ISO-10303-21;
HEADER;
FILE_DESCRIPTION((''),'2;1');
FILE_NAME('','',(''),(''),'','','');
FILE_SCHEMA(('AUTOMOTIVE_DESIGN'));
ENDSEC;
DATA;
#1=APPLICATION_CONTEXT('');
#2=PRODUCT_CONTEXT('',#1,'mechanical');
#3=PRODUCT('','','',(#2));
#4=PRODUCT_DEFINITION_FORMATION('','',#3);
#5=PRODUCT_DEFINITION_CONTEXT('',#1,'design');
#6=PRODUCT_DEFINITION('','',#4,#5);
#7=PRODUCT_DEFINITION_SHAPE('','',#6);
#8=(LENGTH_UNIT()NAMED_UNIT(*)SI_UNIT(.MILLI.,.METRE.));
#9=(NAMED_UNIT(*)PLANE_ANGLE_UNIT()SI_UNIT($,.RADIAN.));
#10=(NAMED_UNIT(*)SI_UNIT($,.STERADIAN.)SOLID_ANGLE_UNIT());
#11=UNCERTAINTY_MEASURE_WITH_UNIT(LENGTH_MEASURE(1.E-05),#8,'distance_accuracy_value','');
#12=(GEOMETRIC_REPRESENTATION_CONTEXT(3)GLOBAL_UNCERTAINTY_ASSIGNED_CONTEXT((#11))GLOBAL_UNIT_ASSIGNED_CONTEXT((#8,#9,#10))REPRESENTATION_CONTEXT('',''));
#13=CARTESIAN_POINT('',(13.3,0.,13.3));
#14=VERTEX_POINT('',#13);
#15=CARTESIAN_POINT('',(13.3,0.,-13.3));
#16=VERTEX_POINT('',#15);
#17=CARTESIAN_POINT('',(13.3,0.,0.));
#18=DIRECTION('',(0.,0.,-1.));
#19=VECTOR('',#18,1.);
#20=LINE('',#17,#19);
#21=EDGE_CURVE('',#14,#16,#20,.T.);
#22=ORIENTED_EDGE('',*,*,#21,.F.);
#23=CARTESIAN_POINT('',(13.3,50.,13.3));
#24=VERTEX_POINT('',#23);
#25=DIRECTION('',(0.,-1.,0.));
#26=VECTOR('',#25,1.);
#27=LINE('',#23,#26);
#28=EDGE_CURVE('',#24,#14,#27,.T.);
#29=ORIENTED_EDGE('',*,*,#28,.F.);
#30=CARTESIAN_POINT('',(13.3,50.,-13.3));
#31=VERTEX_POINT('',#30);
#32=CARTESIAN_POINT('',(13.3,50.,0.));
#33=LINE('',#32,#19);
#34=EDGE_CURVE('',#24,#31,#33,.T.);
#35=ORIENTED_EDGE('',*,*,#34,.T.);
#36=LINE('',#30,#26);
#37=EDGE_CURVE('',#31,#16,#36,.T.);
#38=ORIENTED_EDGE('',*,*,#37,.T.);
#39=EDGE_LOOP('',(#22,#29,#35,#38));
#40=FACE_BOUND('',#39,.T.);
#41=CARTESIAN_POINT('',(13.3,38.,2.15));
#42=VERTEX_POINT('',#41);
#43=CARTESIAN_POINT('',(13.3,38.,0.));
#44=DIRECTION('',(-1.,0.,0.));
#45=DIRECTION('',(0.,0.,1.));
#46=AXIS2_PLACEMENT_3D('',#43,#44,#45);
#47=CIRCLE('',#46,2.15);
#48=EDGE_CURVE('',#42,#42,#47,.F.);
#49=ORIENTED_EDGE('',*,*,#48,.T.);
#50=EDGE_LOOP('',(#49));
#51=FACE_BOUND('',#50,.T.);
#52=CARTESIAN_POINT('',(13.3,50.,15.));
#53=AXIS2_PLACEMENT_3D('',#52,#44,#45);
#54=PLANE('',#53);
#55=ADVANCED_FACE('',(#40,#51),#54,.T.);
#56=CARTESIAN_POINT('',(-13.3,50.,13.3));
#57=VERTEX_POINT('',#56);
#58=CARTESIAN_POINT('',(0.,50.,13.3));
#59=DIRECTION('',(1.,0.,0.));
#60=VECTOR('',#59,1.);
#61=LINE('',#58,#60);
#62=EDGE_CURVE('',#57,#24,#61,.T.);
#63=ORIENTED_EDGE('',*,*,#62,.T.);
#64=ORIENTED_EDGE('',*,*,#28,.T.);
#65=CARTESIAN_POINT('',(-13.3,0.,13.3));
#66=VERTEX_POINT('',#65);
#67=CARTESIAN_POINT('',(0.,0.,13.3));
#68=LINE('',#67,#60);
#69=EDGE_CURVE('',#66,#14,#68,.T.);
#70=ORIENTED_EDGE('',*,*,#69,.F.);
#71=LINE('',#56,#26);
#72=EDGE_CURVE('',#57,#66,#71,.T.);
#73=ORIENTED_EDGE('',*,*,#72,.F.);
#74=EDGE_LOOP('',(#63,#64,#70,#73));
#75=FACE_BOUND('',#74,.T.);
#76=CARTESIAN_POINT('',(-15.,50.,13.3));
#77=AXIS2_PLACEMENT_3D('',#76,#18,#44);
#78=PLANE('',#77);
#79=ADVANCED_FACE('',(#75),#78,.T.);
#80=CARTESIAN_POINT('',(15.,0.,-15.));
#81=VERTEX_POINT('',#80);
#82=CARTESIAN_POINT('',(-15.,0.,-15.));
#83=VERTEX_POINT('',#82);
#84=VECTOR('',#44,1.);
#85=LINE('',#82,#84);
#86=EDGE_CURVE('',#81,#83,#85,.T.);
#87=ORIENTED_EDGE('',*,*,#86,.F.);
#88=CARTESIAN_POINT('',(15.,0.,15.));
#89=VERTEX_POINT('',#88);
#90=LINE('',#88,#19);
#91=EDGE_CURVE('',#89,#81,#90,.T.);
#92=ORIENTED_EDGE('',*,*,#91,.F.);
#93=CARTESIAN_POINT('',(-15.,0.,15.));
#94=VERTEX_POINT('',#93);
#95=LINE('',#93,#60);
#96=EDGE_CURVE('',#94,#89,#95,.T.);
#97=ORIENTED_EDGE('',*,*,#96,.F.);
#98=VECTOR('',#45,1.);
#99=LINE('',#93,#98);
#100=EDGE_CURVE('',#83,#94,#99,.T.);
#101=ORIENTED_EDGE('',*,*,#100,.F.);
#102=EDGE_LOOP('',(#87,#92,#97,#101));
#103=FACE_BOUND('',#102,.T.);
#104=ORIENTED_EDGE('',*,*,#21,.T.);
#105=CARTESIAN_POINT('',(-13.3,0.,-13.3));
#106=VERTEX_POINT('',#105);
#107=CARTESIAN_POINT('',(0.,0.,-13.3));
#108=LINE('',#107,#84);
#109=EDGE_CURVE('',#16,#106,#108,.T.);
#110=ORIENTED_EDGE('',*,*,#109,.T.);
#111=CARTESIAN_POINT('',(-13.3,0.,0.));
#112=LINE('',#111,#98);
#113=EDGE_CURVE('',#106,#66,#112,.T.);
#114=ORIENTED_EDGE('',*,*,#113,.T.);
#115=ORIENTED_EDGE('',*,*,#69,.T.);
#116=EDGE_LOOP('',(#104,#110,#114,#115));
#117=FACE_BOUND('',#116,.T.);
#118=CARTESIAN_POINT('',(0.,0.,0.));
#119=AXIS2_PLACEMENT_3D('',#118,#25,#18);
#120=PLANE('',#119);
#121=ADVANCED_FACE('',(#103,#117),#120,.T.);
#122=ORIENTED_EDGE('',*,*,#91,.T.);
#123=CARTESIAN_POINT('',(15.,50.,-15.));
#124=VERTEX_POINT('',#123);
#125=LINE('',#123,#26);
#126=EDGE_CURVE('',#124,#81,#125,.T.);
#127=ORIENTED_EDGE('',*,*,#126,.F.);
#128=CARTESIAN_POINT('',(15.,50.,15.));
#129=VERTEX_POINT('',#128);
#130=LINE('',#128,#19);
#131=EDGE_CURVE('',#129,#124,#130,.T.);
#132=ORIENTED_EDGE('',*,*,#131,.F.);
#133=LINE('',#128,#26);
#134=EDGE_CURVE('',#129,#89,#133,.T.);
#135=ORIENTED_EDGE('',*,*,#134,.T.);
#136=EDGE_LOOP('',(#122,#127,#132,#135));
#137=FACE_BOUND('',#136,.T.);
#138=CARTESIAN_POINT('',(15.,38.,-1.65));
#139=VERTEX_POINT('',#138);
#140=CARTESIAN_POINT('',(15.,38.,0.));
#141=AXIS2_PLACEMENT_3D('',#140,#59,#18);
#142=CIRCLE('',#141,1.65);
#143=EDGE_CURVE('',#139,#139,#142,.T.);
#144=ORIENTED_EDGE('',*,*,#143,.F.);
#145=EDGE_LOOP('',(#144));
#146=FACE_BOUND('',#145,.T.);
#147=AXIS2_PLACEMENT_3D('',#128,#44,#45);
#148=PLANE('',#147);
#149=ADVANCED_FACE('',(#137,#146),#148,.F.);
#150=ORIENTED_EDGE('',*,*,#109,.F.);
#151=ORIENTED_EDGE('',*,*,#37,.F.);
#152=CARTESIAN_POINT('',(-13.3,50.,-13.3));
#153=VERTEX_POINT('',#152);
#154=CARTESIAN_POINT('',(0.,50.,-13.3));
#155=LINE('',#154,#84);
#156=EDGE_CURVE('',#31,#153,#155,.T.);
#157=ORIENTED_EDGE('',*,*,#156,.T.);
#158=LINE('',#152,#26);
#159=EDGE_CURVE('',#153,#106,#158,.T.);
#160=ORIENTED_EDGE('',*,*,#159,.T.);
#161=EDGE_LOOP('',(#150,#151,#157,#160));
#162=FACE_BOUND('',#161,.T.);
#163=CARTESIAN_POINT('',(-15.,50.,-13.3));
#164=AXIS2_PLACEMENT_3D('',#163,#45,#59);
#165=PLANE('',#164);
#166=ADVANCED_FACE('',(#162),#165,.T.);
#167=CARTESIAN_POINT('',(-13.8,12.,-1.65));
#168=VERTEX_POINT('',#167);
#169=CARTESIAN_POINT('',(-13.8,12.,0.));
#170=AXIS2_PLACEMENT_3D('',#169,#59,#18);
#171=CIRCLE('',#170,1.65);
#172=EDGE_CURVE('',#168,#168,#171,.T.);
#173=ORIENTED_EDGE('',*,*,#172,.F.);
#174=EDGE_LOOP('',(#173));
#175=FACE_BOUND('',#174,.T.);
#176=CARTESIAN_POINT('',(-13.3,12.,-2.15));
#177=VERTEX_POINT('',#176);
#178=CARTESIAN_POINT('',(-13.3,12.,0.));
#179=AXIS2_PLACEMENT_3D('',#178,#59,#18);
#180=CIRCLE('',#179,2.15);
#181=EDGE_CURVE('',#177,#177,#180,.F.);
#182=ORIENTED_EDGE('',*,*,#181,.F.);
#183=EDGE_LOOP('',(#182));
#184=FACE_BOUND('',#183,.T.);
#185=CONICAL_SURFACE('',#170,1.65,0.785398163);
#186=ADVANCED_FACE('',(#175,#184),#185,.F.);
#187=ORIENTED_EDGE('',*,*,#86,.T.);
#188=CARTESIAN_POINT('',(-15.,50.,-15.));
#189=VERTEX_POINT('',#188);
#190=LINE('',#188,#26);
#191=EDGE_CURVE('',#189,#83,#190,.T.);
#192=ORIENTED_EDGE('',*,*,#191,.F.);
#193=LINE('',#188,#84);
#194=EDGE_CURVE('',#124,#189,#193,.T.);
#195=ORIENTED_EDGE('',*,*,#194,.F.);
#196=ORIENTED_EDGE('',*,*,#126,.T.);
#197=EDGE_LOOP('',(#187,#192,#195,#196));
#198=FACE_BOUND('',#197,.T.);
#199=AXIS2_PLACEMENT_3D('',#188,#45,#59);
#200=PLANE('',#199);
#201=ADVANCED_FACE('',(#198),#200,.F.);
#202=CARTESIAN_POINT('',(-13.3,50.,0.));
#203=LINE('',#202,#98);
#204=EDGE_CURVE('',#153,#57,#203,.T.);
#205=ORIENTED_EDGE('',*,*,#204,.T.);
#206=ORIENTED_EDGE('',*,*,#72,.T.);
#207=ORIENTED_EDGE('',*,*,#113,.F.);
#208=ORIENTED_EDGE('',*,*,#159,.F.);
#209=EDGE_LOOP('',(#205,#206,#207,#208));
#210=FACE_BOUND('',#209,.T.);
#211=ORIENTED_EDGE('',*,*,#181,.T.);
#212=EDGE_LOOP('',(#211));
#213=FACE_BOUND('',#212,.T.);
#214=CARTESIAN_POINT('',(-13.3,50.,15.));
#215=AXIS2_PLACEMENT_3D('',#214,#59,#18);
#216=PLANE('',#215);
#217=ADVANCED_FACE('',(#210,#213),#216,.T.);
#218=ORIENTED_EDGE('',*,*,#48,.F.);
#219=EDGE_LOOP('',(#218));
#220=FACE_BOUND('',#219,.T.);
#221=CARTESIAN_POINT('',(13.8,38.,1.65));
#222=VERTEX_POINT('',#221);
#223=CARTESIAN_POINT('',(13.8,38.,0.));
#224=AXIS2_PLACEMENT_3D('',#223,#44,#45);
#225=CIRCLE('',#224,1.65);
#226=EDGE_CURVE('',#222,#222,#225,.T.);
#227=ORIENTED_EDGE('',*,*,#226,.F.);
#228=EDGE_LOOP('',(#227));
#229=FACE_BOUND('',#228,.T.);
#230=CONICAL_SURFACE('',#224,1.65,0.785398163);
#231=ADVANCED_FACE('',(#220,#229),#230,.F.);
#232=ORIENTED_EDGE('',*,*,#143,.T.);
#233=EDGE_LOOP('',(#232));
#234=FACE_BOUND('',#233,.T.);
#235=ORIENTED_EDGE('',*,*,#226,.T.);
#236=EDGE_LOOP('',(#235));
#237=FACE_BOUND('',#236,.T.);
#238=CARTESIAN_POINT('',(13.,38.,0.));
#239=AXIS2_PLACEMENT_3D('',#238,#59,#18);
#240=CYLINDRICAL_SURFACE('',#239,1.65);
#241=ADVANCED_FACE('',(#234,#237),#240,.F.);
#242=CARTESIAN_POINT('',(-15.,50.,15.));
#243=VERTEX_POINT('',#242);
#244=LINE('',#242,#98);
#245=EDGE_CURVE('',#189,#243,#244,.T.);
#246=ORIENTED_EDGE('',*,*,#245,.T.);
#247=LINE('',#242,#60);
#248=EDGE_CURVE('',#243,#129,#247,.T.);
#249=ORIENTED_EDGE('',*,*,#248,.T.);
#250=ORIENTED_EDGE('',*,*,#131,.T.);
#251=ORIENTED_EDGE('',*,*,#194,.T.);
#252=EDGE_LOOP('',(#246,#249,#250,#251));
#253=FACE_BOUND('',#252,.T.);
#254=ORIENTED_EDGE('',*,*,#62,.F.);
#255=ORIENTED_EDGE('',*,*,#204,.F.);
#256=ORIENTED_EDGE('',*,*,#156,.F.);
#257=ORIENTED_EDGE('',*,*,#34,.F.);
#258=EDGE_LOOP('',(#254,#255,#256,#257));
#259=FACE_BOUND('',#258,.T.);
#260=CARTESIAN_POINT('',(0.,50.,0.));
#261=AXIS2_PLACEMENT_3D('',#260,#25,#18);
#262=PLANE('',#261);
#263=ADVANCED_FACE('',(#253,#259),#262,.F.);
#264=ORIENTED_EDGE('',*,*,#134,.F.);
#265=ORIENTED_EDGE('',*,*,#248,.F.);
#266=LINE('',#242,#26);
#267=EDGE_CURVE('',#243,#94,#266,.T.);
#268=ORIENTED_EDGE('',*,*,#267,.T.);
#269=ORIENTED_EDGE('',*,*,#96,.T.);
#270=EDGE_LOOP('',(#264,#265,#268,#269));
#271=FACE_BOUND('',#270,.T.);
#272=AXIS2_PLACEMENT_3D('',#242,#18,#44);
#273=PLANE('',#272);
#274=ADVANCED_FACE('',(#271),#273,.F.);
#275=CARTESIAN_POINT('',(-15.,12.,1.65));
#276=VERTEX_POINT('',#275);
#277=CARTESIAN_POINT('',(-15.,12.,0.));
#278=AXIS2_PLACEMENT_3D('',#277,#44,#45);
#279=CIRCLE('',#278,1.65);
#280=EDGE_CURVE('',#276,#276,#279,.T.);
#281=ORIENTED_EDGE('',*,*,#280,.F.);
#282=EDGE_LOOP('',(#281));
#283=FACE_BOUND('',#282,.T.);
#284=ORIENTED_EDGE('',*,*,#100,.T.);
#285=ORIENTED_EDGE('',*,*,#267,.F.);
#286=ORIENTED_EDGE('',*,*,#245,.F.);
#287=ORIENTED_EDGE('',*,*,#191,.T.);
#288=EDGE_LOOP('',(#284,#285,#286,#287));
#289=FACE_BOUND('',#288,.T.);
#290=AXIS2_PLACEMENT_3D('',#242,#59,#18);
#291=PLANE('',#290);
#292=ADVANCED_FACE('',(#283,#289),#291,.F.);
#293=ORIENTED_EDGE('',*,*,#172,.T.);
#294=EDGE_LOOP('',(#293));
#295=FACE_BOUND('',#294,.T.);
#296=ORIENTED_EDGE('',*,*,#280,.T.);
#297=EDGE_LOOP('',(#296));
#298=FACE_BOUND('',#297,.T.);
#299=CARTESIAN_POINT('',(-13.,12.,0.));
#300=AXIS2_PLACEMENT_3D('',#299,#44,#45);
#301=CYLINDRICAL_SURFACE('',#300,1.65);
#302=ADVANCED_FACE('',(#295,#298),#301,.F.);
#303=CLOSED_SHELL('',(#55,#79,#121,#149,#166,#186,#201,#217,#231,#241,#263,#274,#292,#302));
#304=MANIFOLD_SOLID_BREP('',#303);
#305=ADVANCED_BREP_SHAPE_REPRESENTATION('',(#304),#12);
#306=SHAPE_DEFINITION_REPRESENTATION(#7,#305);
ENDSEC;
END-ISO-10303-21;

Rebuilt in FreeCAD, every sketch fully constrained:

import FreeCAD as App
import Part
import Sketcher
from FreeCAD import Vector


def edges_at(feature, points):
    """Names of the edges that pass closest to the given points."""
    edges = feature.Shape.Edges
    near = lambda p: min(range(len(edges)), key=lambda i: edges[i].distToShape(Part.Vertex(*p))[0])
    return sorted({f"Edge{near(p) + 1}" for p in points})


def faces_at(feature, points):
    """Names of the faces that lie closest to the given points."""
    faces = feature.Shape.Faces
    near = lambda p: min(range(len(faces)), key=lambda i: faces[i].distToShape(Part.Vertex(*p))[0])
    return sorted({f"Face{near(p) + 1}" for p in points})


def add_polygon(sketch, points):
    """Adds a closed chain of lines whose ends are joined by coincident constraints."""
    first, n = sketch.GeometryCount, len(points)
    for a, b in zip(points, points[1:] + points[:1]):
        sketch.addGeometry(Part.LineSegment(App.Vector(*a, 0), App.Vector(*b, 0)), False)
    for i in range(n):
        sketch.addConstraint(Sketcher.Constraint("Coincident", first + i, 2, first + (i + 1) % n, 1))

doc = App.newDocument("Part")
body = doc.addObject("PartDesign::Body", "Body")

sketch1 = body.newObject("Sketcher::SketchObject", "Sketch")
sketch1.AttachmentSupport = (doc.getObject("XZ_Plane"), [""])
sketch1.MapMode = "FlatFace"
add_polygon(sketch1, [(-15, -15), (-15, 15), (15, 15), (15, -15)])
sketch1.addConstraint(Sketcher.Constraint("Vertical", 0))
sketch1.addConstraint(Sketcher.Constraint("Horizontal", 1))
sketch1.addConstraint(Sketcher.Constraint("Vertical", 2))
sketch1.addConstraint(Sketcher.Constraint("Horizontal", 3))
sketch1.addConstraint(Sketcher.Constraint("Symmetric", 0, 2, 2, 2, -1, 1))
sketch1.addConstraint(Sketcher.Constraint("Equal", 3, 0))
sketch1.addConstraint(Sketcher.Constraint("DistanceX", 1, 1, 1, 2, 30.0))
pad1 = body.newObject("PartDesign::Pad", "Pad")
pad1.Profile = sketch1
pad1.Length = 50
pad1.Reversed = True
doc.recompute()

thickness = body.newObject("PartDesign::Thickness", "Thickness")
thickness.Base = (pad1, faces_at(pad1, [(0, 50, 0), (0, 0, 0)]))
thickness.Value = 1.7
thickness.Reversed = True
thickness.Join = "Intersection"

sketch2 = body.newObject("Sketcher::SketchObject", "Sketch001")
sketch2.AttachmentSupport = (doc.getObject("YZ_Plane"), [""])
sketch2.MapMode = "FlatFace"
sketch2.AttachmentOffset = App.Placement(Vector(0, 0, -15), App.Rotation())
sketch2.addGeometry(Part.Circle(Vector(12, 0, 0), Vector(0, 0, 1), 1.6), False)
sketch2.addConstraint(Sketcher.Constraint("PointOnObject", 0, 3, -1))
sketch2.addConstraint(Sketcher.Constraint("Diameter", 0, 3.3))
sketch2.addConstraint(Sketcher.Constraint("DistanceX", -1, 1, 0, 3, 12.0))
pocket1 = body.newObject("PartDesign::Pocket", "Pocket")
pocket1.Profile = sketch2
pocket1.Length = 2
pocket1.Reversed = True

sketch3 = body.newObject("Sketcher::SketchObject", "Sketch002")
sketch3.AttachmentSupport = (doc.getObject("YZ_Plane"), [""])
sketch3.MapMode = "FlatFace"
sketch3.AttachmentOffset = App.Placement(Vector(0, 0, 15), App.Rotation())
sketch3.addGeometry(Part.Circle(Vector(38, 0, 0), Vector(0, 0, 1), 1.6), False)
sketch3.addConstraint(Sketcher.Constraint("PointOnObject", 0, 3, -1))
sketch3.addConstraint(Sketcher.Constraint("Diameter", 0, 3.3))
sketch3.addConstraint(Sketcher.Constraint("DistanceX", -1, 1, 0, 3, 38.0))
pocket2 = body.newObject("PartDesign::Pocket", "Pocket001")
pocket2.Profile = sketch3
pocket2.Length = 2
doc.recompute()

chamfer = body.newObject("PartDesign::Chamfer", "Chamfer")
chamfer.Base = (pocket2, edges_at(pocket2, [(13.3, 38, 1.65)]))
chamfer.Size = 0.5
doc.recompute()

chamfer2 = body.newObject("PartDesign::Chamfer", "Chamfer001")
chamfer2.Base = (chamfer, edges_at(chamfer, [(-13.3, 12, -1.65)]))
chamfer2.Size = 0.5

doc.recompute()
